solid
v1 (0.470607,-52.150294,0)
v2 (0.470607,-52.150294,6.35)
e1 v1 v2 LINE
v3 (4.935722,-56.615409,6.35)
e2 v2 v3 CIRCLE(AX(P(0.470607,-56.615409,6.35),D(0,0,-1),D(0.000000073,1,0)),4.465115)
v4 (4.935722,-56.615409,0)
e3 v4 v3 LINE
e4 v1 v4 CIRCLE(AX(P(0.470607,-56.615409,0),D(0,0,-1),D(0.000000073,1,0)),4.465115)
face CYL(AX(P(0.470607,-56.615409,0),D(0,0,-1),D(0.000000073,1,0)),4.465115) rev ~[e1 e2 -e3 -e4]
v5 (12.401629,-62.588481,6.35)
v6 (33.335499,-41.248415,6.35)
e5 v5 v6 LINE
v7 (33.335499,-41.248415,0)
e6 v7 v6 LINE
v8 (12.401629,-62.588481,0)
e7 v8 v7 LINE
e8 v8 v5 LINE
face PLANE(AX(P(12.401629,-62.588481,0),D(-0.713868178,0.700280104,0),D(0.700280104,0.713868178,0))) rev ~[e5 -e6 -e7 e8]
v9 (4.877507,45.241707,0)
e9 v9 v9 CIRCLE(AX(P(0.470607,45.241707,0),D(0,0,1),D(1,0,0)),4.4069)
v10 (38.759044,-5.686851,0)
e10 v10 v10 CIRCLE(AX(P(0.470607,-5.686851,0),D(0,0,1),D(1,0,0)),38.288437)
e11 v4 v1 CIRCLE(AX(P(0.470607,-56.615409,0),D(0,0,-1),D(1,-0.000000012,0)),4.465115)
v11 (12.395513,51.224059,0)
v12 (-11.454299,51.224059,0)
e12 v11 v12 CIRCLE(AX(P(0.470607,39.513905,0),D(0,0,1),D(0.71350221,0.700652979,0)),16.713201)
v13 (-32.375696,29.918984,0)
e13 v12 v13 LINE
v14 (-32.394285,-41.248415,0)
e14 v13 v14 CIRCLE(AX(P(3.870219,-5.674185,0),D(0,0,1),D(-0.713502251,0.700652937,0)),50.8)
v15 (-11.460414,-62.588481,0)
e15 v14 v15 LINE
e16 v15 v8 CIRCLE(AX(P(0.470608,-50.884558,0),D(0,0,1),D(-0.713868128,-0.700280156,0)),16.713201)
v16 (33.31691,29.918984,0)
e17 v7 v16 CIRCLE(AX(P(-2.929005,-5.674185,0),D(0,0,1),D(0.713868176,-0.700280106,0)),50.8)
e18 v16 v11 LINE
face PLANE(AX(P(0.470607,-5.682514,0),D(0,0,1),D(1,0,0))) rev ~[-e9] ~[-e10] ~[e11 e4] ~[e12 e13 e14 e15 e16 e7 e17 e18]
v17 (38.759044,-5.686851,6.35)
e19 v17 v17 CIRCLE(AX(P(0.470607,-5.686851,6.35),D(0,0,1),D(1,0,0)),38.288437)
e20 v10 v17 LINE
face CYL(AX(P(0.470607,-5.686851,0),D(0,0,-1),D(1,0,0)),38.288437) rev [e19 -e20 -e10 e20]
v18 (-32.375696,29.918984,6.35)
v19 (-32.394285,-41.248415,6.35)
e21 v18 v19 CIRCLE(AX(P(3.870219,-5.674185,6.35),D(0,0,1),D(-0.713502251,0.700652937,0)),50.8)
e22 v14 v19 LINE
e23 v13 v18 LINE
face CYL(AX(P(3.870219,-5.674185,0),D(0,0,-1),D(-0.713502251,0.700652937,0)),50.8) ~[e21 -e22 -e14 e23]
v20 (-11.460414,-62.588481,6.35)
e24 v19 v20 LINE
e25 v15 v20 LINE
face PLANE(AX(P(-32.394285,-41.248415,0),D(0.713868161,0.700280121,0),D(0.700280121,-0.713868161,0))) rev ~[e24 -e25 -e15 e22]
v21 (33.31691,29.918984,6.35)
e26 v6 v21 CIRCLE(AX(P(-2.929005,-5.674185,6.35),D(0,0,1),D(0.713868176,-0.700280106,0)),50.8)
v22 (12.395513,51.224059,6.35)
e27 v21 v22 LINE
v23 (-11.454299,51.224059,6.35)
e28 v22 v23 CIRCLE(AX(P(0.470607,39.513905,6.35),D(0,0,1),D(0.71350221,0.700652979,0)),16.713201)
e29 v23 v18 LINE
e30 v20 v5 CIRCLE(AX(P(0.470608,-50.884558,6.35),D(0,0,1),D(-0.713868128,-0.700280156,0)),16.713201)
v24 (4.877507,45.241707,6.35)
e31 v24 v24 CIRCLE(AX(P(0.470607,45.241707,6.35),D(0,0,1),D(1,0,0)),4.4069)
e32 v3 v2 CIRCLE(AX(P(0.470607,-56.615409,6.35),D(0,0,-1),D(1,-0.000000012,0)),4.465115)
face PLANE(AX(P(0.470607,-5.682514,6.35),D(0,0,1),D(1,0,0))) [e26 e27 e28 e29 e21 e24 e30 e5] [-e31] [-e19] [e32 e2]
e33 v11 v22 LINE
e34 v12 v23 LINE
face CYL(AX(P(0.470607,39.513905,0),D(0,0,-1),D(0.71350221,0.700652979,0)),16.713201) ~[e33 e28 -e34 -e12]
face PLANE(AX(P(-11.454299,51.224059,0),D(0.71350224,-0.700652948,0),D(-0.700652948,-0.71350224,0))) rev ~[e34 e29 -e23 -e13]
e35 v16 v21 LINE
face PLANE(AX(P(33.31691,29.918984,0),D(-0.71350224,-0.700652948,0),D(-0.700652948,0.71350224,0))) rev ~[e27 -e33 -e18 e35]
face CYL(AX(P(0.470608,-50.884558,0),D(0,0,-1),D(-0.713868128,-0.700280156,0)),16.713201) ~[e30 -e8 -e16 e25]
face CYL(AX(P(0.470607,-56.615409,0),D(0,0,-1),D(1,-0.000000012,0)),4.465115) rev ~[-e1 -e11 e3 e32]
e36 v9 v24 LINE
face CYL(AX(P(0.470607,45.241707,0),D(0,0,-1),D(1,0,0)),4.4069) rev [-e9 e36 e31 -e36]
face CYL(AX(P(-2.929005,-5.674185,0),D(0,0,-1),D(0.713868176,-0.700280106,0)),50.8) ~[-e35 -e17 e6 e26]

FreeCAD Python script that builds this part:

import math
import FreeCAD as App
import Part
import Sketcher
from FreeCAD import Vector
Q = App.Units.Quantity

doc = App.newDocument("Part")
body = doc.addObject("PartDesign::Body", "Body")

sketch1 = doc.addObject("Sketcher::SketchObject", "Sketch")
body.addObject(sketch1)
sketch1.AttachmentSupport = (doc.XY_Plane, [""])
sketch1.MapMode = "FlatFace"
sketch1.addGeometry([
    Part.ArcOfCircle(Part.Circle(Vector(0.5, 39.5, 0), Vector(0, 0, 1), 16.7), math.radians(44), math.radians(136)),
    Part.LineSegment(Vector(-11.5, 51.2, 0), Vector(-32.4, 29.9, 0)),
    Part.ArcOfCircle(Part.Circle(Vector(3.9, -5.7, 0), Vector(0, 0, 1), 50.8), math.radians(136), math.radians(224)),
    Part.LineSegment(Vector(-32.4, -41.2, 0), Vector(-11.5, -62.6, 0)),
    Part.ArcOfCircle(Part.Circle(Vector(0.5, -50.9, 0), Vector(0, 0, 1), 16.7), math.radians(-136), math.radians(-44)),
    Part.LineSegment(Vector(12.4, -62.6, 0), Vector(33.3, -41.2, 0)),
    Part.ArcOfCircle(Part.Circle(Vector(-2.9, -5.7, 0), Vector(0, 0, 1), 50.8), math.radians(-44), math.radians(44)),
    Part.LineSegment(Vector(33.3, 29.9, 0), Vector(12.4, 51.2, 0)),
    Part.ArcOfCircle(Part.Circle(Vector(0.5, -56.6, 0), Vector(0, 0, 1), 4.5), math.radians(90), math.radians(360)),
    Part.ArcOfCircle(Part.Circle(Vector(0.5, -56.6, 0), Vector(0, 0, 1), 4.5), math.radians(0), math.radians(90)),
    Part.Circle(Vector(0.5, -5.7, 0), Vector(0, 0, 1), 38.3),
    Part.Circle(Vector(0.5, 45.2, 0), Vector(0, 0, 1), 4.4),
], False)
sketch1.addConstraint([
    Sketcher.Constraint("Tangent", 0, 2, 1, 1),
    Sketcher.Constraint("Tangent", 1, 2, 2, 1),
    Sketcher.Constraint("Tangent", 2, 2, 3, 1),
    Sketcher.Constraint("Tangent", 3, 2, 4, 1),
    Sketcher.Constraint("Tangent", 4, 2, 5, 1),
    Sketcher.Constraint("Tangent", 5, 2, 6, 1),
    Sketcher.Constraint("Tangent", 6, 2, 7, 1),
    Sketcher.Constraint("Tangent", 7, 2, 0, 1),
    Sketcher.Constraint("Tangent", 8, 1, 9, 2),
    Sketcher.Constraint("Coincident", 9, 1, 8, 2),
    Sketcher.Constraint("Equal", 0, 4),
    Sketcher.Constraint("Equal", 2, 6),
    Sketcher.Constraint("Horizontal", 2, 3, 6, 3),
    Sketcher.Constraint("Horizontal", 3, 2, 4, 2),
    Sketcher.Constraint("Horizontal", 1, 2, 6, 2),
    Sketcher.Constraint("Horizontal", 8, 3, 9, 1),
    Sketcher.Constraint("Vertical", 4, 3, 8, 3),
    Sketcher.Constraint("Vertical", 9, 3, 10, 3),
    Sketcher.Constraint("Vertical", 10, 3, 11, 3),
    Sketcher.Constraint("Vertical", 11, 3, 8, 1),
    Sketcher.Constraint("Radius", 2, Q("2 in")),
    Sketcher.Constraint("Diameter", 11, Q("0.347 in")),
    Sketcher.Constraint("Radius", 0, Q("0.658 in")),
    Sketcher.Constraint("Diameter", 10, Q("76.576874 mm")),
    Sketcher.Constraint("Radius", 8, Q("4.465115 mm")),
    Sketcher.Constraint("DistanceX", 0, 2, -1, 1, Q("11.454299 mm")),
    Sketcher.Constraint("DistanceX", -1, 1, 5, 2, Q("33.335499 mm")),
    Sketcher.Constraint("DistanceX", -1, 1, 2, 3, Q("3.870219 mm")),
    Sketcher.Constraint("DistanceY", 4, 3, -1, 1, Q("50.884558 mm")),
    Sketcher.Constraint("DistanceY", 8, 3, -1, 1, Q("56.615409 mm")),
    Sketcher.Constraint("DistanceY", 10, 3, -1, 1, Q("5.686851 mm")),
    Sketcher.Constraint("DistanceY", -1, 1, 0, 2, Q("51.224059 mm")),
    Sketcher.Constraint("DistanceY", 11, 3, 0, 2, Q("5.982352 mm")),
])
pad1 = doc.addObject("PartDesign::Pad", "Pad")
body.addObject(pad1)
pad1.Profile = sketch1
pad1.Length = Q("0.25 in")

doc.recompute()
